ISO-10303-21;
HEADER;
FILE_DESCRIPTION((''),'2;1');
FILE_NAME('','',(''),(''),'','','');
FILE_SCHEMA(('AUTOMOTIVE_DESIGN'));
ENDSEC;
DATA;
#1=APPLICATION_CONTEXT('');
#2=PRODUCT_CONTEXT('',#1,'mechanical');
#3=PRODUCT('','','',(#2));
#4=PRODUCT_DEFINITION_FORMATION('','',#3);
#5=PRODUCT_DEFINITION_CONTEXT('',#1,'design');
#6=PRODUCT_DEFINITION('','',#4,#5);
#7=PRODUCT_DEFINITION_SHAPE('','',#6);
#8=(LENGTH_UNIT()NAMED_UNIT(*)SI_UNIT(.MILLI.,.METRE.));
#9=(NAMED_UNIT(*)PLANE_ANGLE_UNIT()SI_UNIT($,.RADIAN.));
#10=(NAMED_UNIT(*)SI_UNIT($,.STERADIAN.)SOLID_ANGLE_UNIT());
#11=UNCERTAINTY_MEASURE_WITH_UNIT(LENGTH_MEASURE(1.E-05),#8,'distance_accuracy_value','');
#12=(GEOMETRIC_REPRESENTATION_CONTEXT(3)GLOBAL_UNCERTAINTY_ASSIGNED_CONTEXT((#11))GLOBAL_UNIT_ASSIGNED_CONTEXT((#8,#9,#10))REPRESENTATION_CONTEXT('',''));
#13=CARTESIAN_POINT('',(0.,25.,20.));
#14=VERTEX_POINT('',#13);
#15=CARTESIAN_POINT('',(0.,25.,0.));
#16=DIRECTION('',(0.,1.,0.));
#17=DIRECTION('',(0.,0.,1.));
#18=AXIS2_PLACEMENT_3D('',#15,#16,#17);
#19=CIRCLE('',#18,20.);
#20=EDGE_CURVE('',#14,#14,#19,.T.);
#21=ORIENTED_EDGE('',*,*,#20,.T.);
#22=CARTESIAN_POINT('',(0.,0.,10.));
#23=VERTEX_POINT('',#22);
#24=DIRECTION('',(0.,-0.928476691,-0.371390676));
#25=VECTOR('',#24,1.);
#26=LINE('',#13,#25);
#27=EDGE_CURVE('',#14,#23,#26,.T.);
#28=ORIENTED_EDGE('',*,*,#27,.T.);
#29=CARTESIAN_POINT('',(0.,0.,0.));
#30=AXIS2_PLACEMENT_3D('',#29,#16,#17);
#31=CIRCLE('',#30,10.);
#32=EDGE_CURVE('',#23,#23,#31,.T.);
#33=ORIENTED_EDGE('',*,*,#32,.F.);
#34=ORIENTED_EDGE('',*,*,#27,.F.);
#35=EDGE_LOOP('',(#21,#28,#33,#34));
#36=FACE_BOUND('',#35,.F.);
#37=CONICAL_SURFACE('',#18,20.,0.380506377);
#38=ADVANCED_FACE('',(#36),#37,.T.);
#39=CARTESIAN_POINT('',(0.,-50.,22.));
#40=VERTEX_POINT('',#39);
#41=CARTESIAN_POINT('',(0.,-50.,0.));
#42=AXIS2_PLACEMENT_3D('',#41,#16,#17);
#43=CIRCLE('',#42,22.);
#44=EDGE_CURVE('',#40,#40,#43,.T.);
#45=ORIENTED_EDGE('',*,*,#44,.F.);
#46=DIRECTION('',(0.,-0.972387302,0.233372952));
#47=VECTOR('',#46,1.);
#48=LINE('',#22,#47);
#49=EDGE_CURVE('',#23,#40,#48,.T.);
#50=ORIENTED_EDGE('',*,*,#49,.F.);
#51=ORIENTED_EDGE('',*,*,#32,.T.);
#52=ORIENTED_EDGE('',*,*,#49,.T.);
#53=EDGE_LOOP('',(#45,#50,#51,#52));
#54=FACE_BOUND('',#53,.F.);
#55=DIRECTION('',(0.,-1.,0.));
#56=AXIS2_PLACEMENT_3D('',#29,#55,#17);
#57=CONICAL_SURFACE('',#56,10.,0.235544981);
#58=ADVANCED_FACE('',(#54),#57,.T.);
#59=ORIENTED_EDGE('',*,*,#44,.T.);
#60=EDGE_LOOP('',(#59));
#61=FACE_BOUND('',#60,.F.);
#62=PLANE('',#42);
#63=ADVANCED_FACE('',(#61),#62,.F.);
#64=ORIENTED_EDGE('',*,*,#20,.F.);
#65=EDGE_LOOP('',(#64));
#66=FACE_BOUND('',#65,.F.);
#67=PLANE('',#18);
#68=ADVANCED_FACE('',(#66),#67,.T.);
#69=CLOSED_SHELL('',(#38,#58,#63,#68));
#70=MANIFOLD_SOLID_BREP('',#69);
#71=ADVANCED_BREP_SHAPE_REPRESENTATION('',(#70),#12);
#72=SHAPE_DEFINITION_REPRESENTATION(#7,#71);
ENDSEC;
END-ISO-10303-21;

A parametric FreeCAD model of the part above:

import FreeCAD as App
import Part
import Sketcher

V = App.Vector
Q = App.Units.Quantity

doc = App.newDocument("Part")
body = doc.addObject("PartDesign::Body", "Body")

# Sketch on YZ plane
sketch1 = doc.addObject("Sketcher::SketchObject", "Sketch")
body.addObject(sketch1)
sketch1.AttachmentSupport = (doc.YZ_Plane, [""])
sketch1.MapMode = "FlatFace"
sketch1.addGeometry([
    Part.LineSegment(V(25, 0, 0), V(25, 20, 0)),  # 0
    Part.LineSegment(V(25, 20, 0), V(0, 10, 0)),  # 1
    Part.LineSegment(V(0, 10, 0), V(-50, 22, 0)),  # 2
    Part.LineSegment(V(-50, 22, 0), V(-50, 0, 0)),  # 3
    Part.LineSegment(V(-50, 0, 0), V(25, 0, 0)),  # 4
], False)
sketch1.addConstraint([
    Sketcher.Constraint("Coincident", 0, 2, 1, 1),
    Sketcher.Constraint("Coincident", 1, 2, 2, 1),
    Sketcher.Constraint("Coincident", 2, 2, 3, 1),
    Sketcher.Constraint("Coincident", 3, 2, 4, 1),
    Sketcher.Constraint("Coincident", 4, 2, 0, 1),
    Sketcher.Constraint("Vertical", 0),
    Sketcher.Constraint("Vertical", 3),
    Sketcher.Constraint("Horizontal", 4),
    Sketcher.Constraint("PointOnObject", 1, 2, -2),
    Sketcher.Constraint("PointOnObject", 3, 2, -1),
    Sketcher.Constraint("DistanceX", 4, 1, 4, 2, Q("75 mm")),
    Sketcher.Constraint("DistanceY", 0, 1, 0, 2, Q("20 mm")),
    Sketcher.Constraint("DistanceY", 3, 2, 3, 1, Q("22 mm")),
    Sketcher.Constraint("DistanceX", -1, 1, 0, 2, Q("25 mm")),
    Sketcher.Constraint("DistanceY", -1, 1, 1, 2, Q("10 mm")),
])
revolution = doc.addObject("PartDesign::Revolution", "Revolution")
body.addObject(revolution)
revolution.Profile = sketch1
revolution.ReferenceAxis = (sketch1, ["H_Axis"])
revolution.Angle = 360

doc.recompute()
